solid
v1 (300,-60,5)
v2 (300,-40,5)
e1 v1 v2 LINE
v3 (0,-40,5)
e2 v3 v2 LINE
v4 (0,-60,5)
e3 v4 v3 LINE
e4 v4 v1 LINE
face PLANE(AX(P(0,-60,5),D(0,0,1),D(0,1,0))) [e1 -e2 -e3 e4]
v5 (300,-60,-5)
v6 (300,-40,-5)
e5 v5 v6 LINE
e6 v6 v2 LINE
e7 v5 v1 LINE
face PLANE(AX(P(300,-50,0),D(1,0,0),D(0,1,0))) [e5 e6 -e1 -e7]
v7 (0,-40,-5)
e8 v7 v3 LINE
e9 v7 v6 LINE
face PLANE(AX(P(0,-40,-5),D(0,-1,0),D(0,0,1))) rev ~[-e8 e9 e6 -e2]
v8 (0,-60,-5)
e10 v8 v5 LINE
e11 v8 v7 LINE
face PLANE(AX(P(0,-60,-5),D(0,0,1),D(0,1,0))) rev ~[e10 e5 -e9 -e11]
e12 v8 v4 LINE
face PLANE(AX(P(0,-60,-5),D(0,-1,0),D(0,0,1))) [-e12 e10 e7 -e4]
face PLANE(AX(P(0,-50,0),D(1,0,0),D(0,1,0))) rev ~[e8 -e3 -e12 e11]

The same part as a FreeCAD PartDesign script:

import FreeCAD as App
import Part
import Sketcher

V = App.Vector
Q = App.Units.Quantity


def add_polygon(sketch, points):
    """Adds a closed chain of lines whose ends are joined by coincident constraints."""
    first, n = sketch.GeometryCount, len(points)
    for a, b in zip(points, points[1:] + points[:1]):
        sketch.addGeometry(Part.LineSegment(App.Vector(*a, 0), App.Vector(*b, 0)), False)
    for i in range(n):
        sketch.addConstraint(Sketcher.Constraint("Coincident", first + i, 2, first + (i + 1) % n, 1))

doc = App.newDocument("Part")
body = doc.addObject("PartDesign::Body", "Body")

# Sketch on YZ plane
sketch1 = body.newObject("Sketcher::SketchObject", "Sketch")
sketch1.AttachmentSupport = (doc.getObject("YZ_Plane"), [""])
sketch1.MapMode = "FlatFace"
add_polygon(sketch1, [(-60, 5), (-60, -5), (-40, -5), (-40, 5)])  # lines 0-3
sketch1.addConstraint([
    Sketcher.Constraint("Vertical", 0),
    Sketcher.Constraint("Horizontal", 1),
    Sketcher.Constraint("Vertical", 2),
    Sketcher.Constraint("Horizontal", 3),
    Sketcher.Constraint("DistanceX", 1, 1, 1, 2, Q("20 mm")),
    Sketcher.Constraint("DistanceY", 0, 2, 0, 1, Q("10 mm")),
    Sketcher.Constraint("DistanceX", 0, 2, -1, 1, Q("60 mm")),
    Sketcher.Constraint("DistanceY", 0, 2, -1, 1, Q("5 mm")),
])
pad1 = body.newObject("PartDesign::Pad", "Pad")
pad1.Profile = sketch1
pad1.Length = 300

doc.recompute()
